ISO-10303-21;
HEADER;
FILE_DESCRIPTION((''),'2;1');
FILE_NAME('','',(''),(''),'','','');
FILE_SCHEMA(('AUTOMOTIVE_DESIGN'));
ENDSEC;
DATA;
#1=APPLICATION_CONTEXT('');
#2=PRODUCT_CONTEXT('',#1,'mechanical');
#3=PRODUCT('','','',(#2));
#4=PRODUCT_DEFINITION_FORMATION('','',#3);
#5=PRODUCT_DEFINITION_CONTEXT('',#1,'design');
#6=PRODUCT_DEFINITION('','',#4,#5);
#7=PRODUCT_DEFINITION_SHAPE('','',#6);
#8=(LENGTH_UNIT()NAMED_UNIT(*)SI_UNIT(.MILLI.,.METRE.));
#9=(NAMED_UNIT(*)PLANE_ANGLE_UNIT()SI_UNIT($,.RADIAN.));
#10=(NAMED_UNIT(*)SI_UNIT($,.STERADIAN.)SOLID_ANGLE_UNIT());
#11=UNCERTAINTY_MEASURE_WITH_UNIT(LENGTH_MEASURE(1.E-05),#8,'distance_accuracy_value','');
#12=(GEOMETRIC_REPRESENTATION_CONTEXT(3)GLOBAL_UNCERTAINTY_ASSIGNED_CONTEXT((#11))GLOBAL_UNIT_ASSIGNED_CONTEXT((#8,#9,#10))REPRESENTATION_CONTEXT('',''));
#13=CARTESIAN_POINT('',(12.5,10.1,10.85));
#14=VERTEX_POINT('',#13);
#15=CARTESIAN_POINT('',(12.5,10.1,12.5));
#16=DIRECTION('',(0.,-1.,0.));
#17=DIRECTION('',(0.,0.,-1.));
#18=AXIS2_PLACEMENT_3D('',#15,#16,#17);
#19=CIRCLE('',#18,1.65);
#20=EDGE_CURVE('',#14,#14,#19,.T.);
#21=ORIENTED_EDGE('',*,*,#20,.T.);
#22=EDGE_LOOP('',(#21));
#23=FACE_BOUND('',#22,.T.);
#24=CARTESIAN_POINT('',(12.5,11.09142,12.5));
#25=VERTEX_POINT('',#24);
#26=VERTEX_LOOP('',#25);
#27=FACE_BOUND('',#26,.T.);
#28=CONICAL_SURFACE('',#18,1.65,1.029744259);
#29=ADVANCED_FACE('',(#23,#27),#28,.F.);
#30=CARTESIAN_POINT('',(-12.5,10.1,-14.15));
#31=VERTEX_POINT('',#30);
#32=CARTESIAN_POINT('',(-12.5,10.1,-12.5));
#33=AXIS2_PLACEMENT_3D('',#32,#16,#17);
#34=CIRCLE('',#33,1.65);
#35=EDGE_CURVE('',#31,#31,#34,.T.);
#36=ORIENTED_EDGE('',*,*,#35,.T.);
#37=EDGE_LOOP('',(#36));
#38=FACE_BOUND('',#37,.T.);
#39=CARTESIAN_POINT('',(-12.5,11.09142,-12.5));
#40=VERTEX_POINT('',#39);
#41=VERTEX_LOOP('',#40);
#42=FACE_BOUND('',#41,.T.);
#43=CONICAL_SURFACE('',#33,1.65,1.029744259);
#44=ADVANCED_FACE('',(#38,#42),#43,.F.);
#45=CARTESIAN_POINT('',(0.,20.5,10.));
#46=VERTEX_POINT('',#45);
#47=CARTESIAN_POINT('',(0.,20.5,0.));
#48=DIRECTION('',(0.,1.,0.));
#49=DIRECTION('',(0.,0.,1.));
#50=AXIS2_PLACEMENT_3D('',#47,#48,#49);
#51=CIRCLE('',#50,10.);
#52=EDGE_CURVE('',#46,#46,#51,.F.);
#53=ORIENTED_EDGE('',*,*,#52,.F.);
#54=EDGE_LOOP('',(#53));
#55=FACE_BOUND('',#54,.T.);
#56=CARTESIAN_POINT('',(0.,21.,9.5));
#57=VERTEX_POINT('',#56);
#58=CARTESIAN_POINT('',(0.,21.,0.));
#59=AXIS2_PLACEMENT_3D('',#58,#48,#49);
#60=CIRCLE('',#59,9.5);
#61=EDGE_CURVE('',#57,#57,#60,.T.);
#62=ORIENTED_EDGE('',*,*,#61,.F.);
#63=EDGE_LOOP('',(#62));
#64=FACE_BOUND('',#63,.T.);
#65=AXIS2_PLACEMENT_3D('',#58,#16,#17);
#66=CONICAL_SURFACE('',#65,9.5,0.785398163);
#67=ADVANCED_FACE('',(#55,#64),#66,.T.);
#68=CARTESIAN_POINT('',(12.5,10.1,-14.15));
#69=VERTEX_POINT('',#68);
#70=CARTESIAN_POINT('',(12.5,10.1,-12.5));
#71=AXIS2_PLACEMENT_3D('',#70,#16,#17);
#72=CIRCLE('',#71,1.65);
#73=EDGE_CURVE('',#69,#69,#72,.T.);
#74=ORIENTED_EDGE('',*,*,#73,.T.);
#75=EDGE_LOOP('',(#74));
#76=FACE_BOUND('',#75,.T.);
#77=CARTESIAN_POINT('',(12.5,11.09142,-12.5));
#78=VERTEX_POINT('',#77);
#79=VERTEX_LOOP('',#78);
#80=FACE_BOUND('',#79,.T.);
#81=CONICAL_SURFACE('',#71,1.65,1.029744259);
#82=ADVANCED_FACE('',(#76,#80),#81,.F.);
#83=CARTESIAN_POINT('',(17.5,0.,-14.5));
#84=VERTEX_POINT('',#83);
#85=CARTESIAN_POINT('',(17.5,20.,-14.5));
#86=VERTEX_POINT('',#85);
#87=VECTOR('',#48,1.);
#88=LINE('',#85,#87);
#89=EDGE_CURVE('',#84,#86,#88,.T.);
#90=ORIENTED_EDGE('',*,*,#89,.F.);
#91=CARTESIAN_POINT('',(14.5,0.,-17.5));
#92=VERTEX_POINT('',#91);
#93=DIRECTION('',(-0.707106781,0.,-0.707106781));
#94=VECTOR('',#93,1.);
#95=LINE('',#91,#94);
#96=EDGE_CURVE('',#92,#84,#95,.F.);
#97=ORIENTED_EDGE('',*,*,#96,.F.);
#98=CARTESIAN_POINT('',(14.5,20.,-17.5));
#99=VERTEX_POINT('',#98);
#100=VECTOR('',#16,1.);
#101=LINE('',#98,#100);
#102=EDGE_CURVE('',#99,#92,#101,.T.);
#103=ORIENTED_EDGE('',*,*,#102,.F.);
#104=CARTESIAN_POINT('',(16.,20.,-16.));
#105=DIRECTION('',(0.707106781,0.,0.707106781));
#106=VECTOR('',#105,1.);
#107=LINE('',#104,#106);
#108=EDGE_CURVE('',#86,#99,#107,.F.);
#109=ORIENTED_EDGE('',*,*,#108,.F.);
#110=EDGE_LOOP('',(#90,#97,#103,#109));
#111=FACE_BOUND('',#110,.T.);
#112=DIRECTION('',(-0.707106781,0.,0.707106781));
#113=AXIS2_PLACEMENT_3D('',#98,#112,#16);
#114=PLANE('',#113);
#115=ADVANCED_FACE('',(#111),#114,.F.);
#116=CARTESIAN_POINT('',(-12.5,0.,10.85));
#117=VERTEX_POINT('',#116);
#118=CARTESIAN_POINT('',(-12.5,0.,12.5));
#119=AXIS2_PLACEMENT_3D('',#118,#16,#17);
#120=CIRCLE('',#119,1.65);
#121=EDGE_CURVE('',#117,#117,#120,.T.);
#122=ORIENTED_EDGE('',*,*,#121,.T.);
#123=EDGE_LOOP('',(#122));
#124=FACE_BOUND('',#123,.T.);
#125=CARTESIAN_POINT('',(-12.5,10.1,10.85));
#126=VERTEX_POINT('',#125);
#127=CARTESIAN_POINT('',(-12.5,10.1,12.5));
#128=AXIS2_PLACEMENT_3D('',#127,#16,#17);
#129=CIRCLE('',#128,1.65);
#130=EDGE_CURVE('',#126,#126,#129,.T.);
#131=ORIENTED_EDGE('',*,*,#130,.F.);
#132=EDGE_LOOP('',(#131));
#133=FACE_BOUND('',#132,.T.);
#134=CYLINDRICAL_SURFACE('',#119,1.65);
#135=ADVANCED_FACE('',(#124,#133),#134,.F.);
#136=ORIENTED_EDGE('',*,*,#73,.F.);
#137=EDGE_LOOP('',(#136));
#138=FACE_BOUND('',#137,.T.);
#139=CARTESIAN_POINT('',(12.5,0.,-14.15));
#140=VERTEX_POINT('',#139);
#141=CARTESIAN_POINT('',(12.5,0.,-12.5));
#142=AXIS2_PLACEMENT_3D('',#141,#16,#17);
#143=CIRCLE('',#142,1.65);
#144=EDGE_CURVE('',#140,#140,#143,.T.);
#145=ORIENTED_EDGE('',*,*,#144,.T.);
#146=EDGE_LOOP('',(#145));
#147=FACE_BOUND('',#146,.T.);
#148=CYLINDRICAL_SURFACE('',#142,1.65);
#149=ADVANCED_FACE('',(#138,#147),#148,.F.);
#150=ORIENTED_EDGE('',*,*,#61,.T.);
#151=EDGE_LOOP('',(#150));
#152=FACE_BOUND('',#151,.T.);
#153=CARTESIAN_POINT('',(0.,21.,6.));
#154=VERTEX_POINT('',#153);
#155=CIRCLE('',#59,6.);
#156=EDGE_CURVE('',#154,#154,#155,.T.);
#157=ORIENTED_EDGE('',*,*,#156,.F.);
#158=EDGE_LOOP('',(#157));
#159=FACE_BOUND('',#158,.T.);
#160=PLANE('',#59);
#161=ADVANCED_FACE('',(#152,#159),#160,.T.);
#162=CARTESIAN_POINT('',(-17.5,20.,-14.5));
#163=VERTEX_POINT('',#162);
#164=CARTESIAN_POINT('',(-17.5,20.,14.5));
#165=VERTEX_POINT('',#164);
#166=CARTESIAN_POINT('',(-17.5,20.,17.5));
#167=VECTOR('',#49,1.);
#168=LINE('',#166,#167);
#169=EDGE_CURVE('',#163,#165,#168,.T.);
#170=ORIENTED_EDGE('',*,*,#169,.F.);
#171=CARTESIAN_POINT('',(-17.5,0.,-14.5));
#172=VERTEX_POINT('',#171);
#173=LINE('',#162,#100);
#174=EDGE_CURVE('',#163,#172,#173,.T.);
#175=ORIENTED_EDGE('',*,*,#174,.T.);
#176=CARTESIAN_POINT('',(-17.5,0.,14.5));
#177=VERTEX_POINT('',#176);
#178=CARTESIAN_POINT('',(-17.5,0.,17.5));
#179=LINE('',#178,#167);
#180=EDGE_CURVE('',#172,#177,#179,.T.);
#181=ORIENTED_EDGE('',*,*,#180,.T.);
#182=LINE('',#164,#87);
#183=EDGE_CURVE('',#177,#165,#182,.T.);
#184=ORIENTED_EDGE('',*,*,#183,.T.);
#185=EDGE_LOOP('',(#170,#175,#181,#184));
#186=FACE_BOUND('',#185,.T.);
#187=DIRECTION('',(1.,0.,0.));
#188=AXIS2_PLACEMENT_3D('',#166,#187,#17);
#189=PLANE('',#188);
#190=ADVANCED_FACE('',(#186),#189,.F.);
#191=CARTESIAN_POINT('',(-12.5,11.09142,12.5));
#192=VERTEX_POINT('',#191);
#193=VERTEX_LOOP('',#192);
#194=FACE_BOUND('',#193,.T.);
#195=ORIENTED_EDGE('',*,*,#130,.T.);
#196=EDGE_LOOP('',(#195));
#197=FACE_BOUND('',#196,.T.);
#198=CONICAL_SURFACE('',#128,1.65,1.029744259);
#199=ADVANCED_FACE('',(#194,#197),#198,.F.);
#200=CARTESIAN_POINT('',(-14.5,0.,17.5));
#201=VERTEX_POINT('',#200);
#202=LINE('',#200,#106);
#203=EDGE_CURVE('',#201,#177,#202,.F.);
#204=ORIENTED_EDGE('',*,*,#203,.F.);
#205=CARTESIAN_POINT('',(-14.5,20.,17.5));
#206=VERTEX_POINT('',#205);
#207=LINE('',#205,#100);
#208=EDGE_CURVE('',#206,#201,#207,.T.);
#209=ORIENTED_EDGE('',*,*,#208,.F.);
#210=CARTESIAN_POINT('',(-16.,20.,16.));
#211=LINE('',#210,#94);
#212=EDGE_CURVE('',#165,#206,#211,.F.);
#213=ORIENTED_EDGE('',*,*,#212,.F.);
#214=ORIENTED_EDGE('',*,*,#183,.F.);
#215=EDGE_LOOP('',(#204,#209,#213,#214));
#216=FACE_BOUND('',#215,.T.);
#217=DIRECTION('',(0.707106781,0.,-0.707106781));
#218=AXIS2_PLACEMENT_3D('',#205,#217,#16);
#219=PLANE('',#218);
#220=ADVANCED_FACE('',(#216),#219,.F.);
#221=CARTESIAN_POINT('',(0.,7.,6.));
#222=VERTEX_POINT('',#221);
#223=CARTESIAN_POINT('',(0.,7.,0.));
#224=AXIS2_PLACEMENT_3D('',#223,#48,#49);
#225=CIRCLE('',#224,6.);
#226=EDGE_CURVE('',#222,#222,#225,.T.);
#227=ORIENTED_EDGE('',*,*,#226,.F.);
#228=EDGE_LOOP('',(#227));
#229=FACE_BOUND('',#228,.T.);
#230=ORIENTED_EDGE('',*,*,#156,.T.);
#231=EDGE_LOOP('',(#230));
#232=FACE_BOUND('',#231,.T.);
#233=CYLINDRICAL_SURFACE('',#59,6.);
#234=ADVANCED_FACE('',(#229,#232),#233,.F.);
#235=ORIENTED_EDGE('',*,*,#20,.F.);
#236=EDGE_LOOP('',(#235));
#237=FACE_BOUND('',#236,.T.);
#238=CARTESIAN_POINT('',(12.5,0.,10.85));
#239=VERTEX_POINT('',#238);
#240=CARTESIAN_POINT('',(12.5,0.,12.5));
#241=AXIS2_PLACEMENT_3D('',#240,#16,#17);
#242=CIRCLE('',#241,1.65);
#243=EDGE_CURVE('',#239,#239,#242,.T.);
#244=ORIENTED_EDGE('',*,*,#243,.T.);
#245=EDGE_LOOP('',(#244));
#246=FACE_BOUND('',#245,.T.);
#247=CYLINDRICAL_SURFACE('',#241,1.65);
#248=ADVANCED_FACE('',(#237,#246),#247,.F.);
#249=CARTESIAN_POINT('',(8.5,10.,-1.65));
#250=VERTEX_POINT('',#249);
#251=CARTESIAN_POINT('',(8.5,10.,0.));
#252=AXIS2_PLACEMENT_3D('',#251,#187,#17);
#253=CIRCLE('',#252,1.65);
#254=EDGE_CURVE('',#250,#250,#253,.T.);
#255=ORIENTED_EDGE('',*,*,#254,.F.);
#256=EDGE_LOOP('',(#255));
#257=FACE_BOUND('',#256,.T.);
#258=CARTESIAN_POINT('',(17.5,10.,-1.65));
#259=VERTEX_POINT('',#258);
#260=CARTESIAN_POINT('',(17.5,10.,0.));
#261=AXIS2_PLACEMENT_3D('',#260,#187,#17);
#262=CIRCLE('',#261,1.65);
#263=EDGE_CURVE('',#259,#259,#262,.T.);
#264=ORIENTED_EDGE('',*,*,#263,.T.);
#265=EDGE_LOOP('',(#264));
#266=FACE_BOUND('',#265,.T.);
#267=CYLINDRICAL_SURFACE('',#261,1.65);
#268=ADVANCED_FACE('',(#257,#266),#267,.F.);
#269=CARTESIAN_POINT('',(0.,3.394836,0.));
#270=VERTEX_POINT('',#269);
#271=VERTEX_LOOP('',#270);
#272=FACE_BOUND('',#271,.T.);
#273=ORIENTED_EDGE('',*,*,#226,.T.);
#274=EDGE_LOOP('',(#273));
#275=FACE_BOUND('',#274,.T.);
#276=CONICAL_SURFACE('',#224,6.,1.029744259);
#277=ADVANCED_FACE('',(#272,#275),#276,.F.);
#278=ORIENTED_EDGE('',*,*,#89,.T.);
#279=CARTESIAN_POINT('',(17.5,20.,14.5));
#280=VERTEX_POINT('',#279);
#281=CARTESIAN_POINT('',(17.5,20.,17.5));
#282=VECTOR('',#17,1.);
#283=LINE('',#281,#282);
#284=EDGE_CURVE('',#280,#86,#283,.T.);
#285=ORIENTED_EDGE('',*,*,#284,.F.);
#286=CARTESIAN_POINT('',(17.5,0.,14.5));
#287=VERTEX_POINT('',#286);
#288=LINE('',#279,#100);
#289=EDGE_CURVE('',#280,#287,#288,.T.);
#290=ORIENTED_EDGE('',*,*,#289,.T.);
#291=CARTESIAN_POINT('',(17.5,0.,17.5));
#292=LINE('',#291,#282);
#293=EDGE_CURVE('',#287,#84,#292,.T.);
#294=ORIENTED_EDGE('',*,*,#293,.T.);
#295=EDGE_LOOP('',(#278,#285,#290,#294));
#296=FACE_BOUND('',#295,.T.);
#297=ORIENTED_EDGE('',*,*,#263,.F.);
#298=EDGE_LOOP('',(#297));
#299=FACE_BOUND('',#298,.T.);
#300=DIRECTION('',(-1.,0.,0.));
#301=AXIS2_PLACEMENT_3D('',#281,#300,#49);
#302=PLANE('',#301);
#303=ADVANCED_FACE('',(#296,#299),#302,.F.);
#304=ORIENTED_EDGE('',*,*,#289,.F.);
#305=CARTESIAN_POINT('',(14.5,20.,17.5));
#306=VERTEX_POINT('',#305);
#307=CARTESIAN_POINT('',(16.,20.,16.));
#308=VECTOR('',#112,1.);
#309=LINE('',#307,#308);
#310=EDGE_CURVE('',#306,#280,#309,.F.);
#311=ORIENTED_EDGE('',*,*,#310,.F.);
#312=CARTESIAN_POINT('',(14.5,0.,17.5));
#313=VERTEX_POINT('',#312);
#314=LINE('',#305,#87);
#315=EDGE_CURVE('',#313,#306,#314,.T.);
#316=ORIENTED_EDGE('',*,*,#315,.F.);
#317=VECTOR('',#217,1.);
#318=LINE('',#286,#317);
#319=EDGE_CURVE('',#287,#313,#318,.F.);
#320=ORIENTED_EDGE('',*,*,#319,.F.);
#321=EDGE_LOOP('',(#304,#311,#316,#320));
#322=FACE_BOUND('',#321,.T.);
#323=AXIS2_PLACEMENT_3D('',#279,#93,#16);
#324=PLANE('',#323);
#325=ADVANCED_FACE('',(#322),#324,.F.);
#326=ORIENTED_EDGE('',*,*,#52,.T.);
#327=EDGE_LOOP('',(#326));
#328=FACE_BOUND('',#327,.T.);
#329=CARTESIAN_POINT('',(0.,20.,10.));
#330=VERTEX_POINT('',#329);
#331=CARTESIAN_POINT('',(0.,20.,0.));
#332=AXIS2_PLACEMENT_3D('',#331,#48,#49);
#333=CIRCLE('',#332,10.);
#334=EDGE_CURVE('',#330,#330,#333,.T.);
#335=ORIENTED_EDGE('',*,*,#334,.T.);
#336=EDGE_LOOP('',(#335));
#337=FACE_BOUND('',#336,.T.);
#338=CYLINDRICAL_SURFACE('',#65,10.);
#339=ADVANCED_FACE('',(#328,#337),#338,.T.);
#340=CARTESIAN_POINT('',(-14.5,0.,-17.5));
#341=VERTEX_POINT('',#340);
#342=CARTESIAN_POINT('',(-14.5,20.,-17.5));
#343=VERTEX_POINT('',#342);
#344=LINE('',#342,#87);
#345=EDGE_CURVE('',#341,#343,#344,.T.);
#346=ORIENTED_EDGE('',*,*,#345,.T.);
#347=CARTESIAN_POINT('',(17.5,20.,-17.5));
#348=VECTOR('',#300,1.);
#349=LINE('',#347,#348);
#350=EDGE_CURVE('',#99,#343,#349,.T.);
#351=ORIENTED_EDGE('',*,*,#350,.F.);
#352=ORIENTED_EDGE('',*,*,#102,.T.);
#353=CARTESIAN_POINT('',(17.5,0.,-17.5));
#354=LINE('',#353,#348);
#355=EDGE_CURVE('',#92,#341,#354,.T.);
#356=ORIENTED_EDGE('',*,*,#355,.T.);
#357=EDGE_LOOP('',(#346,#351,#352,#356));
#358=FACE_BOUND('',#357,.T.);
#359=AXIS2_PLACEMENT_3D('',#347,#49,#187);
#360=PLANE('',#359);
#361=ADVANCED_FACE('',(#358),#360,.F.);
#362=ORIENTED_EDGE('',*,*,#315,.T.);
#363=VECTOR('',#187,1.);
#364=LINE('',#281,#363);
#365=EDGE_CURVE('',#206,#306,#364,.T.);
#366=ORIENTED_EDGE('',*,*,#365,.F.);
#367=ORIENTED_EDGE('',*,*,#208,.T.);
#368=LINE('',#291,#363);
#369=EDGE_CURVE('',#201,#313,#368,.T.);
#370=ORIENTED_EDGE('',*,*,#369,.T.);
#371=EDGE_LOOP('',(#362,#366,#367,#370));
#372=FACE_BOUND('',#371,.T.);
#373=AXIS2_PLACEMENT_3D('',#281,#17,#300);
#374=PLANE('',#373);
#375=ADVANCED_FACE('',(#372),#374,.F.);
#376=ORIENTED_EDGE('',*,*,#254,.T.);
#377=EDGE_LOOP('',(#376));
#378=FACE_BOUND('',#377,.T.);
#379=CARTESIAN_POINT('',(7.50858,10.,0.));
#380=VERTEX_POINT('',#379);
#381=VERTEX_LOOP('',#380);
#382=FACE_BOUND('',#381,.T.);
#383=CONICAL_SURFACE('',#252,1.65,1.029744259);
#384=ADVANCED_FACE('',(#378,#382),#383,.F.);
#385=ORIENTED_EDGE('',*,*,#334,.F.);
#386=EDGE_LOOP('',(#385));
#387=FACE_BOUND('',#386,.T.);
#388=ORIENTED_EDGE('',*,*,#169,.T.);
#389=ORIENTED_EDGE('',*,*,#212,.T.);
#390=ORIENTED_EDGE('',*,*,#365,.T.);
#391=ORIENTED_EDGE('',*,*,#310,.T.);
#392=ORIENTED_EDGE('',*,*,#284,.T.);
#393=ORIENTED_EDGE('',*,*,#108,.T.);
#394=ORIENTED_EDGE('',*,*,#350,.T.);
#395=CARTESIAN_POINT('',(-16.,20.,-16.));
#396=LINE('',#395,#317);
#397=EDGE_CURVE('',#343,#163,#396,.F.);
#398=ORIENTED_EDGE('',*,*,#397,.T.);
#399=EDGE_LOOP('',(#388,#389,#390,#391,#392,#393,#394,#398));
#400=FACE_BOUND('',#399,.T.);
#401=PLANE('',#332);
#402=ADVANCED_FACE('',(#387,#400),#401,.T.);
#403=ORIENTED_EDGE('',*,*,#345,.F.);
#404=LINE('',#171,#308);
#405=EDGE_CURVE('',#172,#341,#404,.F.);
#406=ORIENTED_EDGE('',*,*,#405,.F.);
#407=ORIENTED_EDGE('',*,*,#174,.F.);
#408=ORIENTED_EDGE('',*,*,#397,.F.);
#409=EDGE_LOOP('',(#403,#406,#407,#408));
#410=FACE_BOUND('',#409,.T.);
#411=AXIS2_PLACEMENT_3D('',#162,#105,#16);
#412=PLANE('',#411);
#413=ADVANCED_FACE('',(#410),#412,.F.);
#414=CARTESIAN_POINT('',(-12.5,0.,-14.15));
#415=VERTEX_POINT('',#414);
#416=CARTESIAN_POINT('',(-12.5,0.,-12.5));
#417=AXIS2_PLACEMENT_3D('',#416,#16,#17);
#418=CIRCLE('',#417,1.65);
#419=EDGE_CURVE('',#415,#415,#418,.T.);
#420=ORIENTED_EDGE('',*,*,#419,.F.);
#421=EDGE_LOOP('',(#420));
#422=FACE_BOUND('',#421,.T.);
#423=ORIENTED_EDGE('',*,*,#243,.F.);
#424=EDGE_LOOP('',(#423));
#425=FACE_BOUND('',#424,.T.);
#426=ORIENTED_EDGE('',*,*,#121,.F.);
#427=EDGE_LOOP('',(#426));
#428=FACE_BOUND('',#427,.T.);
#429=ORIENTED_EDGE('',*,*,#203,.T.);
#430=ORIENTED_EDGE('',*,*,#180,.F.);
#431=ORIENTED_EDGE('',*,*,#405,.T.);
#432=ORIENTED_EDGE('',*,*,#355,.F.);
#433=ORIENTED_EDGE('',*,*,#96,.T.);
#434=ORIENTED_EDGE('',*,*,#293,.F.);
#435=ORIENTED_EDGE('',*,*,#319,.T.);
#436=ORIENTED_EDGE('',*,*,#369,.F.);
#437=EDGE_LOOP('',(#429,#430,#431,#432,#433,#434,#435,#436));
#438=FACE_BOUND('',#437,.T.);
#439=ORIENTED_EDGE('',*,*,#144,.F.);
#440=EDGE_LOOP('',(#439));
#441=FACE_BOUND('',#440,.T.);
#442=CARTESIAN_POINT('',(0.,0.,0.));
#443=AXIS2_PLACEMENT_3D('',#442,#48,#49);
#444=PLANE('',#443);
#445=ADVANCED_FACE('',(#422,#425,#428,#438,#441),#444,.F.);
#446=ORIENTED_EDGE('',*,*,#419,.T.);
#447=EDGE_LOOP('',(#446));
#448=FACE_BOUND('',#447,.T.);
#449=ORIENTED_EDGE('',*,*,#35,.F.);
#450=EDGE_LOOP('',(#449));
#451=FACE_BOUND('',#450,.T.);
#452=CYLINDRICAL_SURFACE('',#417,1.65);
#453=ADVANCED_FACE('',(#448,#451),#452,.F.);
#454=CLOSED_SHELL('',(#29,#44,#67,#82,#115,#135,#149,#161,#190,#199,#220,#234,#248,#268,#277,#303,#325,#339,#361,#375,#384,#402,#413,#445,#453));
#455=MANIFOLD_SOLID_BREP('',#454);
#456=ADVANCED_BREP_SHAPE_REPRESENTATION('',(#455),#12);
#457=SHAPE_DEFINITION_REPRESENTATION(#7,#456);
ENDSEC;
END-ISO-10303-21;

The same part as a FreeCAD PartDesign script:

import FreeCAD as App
import Part
import Sketcher


def edges_at(feature, points):
    """Names of the edges that pass closest to the given points."""
    edges = feature.Shape.Edges
    near = lambda p: min(range(len(edges)), key=lambda i: edges[i].distToShape(Part.Vertex(*p))[0])
    return sorted({f"Edge{near(p) + 1}" for p in points})

doc = App.newDocument("Part")
body = doc.addObject("PartDesign::Body", "Body")

# Sketch on XZ plane
sketch1 = body.newObject("Sketcher::SketchObject", "Sketch")
sketch1.AttachmentSupport = (doc.getObject("XZ_Plane"), [""])
sketch1.MapMode = "FlatFace"
sketch1.addGeometry([
    Part.LineSegment(App.Vector(-18, -18, 0), App.Vector(-18, 18, 0)),
    Part.LineSegment(App.Vector(-18, 18, 0), App.Vector(18, 18, 0)),
    Part.LineSegment(App.Vector(18, 18, 0), App.Vector(18, -18, 0)),
    Part.LineSegment(App.Vector(18, -18, 0), App.Vector(-18, -18, 0)),
], False)
sketch1.addConstraint([
    Sketcher.Constraint("Coincident", 0, 2, 1, 1),
    Sketcher.Constraint("Coincident", 1, 2, 2, 1),
    Sketcher.Constraint("Coincident", 2, 2, 3, 1),
    Sketcher.Constraint("Coincident", 3, 2, 0, 1),
    Sketcher.Constraint("Vertical", 0),
    Sketcher.Constraint("Horizontal", 1),
    Sketcher.Constraint("Vertical", 2),
    Sketcher.Constraint("Horizontal", 3),
    Sketcher.Constraint("Symmetric", 0, 2, 2, 2, -1, 1),
    Sketcher.Constraint("Equal", 3, 0),
    Sketcher.Constraint("DistanceX", 1, 1, 1, 2, 35.0),
])
pad1 = body.newObject("PartDesign::Pad", "Pad")
pad1.Profile = sketch1
pad1.Length = 20
pad1.Reversed = True

# Sketch on XZ plane
sketch2 = body.newObject("Sketcher::SketchObject", "Sketch001")
sketch2.AttachmentSupport = (doc.getObject("XZ_Plane"), [""])
sketch2.MapMode = "FlatFace"
sketch2.AttachmentOffset = App.Placement(App.Vector(0, 0, -20), App.Rotation())
sketch2.addGeometry(Part.Circle(App.Vector(0, 0, 0), App.Vector(0, 0, 1), 10), False)
sketch2.addConstraint([
    Sketcher.Constraint("Coincident", 0, 3, -1, 1),
    Sketcher.Constraint("Diameter", 0, 20.0),
])
pad2 = body.newObject("PartDesign::Pad", "Pad001")
pad2.Profile = sketch2
pad2.Length = 1
pad2.Reversed = True

# Sketch on XZ plane
sketch3 = body.newObject("Sketcher::SketchObject", "Sketch002")
sketch3.AttachmentSupport = (doc.getObject("XZ_Plane"), [""])
sketch3.MapMode = "FlatFace"
sketch3.AttachmentOffset = App.Placement(App.Vector(0, 0, -21), App.Rotation())
sketch3.addGeometry(Part.Circle(App.Vector(0, 0, 0), App.Vector(0, 0, 1), 6), False)
sketch3.addConstraint([
    Sketcher.Constraint("Coincident", 0, 3, -1, 1),
    Sketcher.Constraint("Diameter", 0, 12.0),
])
doc.recompute()
hole = body.newObject("PartDesign::Hole", "Hole")
hole.Profile = sketch3
hole.ThreadType = "None"
hole.Diameter = 12
hole.DepthType = "Dimension"
hole.Depth = 14
hole.DrillPoint = "Angled"
hole.DrillPointAngle = 118
hole.Reversed = True

# Sketch on XZ plane
sketch4 = body.newObject("Sketcher::SketchObject", "Sketch003")
sketch4.AttachmentSupport = (doc.getObject("XZ_Plane"), [""])
sketch4.MapMode = "FlatFace"
sketch4.addGeometry([
    Part.Circle(App.Vector(12.5, -12.5, 0), App.Vector(0, 0, 1), 1.6),
    Part.Circle(App.Vector(12.5, 12.5, 0), App.Vector(0, 0, 1), 1.6),
    Part.Circle(App.Vector(-12.5, 12.5, 0), App.Vector(0, 0, 1), 1.6),
    Part.Circle(App.Vector(-12.5, -12.5, 0), App.Vector(0, 0, 1), 1.6),
], False)
sketch4.addConstraint([
    Sketcher.Constraint("Equal", 0, 1),
    Sketcher.Constraint("Equal", 1, 2),
    Sketcher.Constraint("Equal", 2, 3),
    Sketcher.Constraint("Symmetric", 0, 3, 2, 3, -1, 1),
    Sketcher.Constraint("Symmetric", 1, 3, 3, 3, -1, 1),
    Sketcher.Constraint("Symmetric", 1, 3, 2, 3, -2),
    Sketcher.Constraint("Diameter", 0, 3.3),
    Sketcher.Constraint("DistanceY", 0, 3, 1, 3, 25.0),
    Sketcher.Constraint("DistanceX", 2, 3, 1, 3, 25.0),
])
doc.recompute()
hole2 = body.newObject("PartDesign::Hole", "Hole001")
hole2.Profile = sketch4
hole2.ThreadType = "None"
hole2.Diameter = 3.3
hole2.DepthType = "Dimension"
hole2.Depth = 10.1
hole2.DrillPoint = "Angled"
hole2.DrillPointAngle = 118

# Sketch on YZ plane
sketch5 = body.newObject("Sketcher::SketchObject", "Sketch004")
sketch5.AttachmentSupport = (doc.getObject("YZ_Plane"), [""])
sketch5.MapMode = "FlatFace"
sketch5.AttachmentOffset = App.Placement(App.Vector(0, 0, 17.5), App.Rotation())
sketch5.addGeometry(Part.Circle(App.Vector(10, 0, 0), App.Vector(0, 0, 1), 1.6), False)
sketch5.addConstraint([
    Sketcher.Constraint("PointOnObject", 0, 3, -1),
    Sketcher.Constraint("Diameter", 0, 3.3),
    Sketcher.Constraint("DistanceX", -1, 1, 0, 3, 10.0),
])
doc.recompute()
hole3 = body.newObject("PartDesign::Hole", "Hole002")
hole3.Profile = sketch5
hole3.ThreadType = "None"
hole3.Diameter = 3.3
hole3.DepthType = "Dimension"
hole3.Depth = 9
hole3.DrillPoint = "Angled"
hole3.DrillPointAngle = 118
doc.recompute()

chamfer = body.newObject("PartDesign::Chamfer", "Chamfer")
chamfer.Base = (hole3, edges_at(hole3, [
    (-17.5, 10, -17.5),
    (17.5, 10, -17.5),
    (17.5, 10, 17.5),
    (-17.5, 10, 17.5),
]))
chamfer.Size = 3
doc.recompute()

chamfer2 = body.newObject("PartDesign::Chamfer", "Chamfer001")
chamfer2.Base = (chamfer, edges_at(chamfer, [(0, 21, -10)]))
chamfer2.Size = 0.5

doc.recompute()
